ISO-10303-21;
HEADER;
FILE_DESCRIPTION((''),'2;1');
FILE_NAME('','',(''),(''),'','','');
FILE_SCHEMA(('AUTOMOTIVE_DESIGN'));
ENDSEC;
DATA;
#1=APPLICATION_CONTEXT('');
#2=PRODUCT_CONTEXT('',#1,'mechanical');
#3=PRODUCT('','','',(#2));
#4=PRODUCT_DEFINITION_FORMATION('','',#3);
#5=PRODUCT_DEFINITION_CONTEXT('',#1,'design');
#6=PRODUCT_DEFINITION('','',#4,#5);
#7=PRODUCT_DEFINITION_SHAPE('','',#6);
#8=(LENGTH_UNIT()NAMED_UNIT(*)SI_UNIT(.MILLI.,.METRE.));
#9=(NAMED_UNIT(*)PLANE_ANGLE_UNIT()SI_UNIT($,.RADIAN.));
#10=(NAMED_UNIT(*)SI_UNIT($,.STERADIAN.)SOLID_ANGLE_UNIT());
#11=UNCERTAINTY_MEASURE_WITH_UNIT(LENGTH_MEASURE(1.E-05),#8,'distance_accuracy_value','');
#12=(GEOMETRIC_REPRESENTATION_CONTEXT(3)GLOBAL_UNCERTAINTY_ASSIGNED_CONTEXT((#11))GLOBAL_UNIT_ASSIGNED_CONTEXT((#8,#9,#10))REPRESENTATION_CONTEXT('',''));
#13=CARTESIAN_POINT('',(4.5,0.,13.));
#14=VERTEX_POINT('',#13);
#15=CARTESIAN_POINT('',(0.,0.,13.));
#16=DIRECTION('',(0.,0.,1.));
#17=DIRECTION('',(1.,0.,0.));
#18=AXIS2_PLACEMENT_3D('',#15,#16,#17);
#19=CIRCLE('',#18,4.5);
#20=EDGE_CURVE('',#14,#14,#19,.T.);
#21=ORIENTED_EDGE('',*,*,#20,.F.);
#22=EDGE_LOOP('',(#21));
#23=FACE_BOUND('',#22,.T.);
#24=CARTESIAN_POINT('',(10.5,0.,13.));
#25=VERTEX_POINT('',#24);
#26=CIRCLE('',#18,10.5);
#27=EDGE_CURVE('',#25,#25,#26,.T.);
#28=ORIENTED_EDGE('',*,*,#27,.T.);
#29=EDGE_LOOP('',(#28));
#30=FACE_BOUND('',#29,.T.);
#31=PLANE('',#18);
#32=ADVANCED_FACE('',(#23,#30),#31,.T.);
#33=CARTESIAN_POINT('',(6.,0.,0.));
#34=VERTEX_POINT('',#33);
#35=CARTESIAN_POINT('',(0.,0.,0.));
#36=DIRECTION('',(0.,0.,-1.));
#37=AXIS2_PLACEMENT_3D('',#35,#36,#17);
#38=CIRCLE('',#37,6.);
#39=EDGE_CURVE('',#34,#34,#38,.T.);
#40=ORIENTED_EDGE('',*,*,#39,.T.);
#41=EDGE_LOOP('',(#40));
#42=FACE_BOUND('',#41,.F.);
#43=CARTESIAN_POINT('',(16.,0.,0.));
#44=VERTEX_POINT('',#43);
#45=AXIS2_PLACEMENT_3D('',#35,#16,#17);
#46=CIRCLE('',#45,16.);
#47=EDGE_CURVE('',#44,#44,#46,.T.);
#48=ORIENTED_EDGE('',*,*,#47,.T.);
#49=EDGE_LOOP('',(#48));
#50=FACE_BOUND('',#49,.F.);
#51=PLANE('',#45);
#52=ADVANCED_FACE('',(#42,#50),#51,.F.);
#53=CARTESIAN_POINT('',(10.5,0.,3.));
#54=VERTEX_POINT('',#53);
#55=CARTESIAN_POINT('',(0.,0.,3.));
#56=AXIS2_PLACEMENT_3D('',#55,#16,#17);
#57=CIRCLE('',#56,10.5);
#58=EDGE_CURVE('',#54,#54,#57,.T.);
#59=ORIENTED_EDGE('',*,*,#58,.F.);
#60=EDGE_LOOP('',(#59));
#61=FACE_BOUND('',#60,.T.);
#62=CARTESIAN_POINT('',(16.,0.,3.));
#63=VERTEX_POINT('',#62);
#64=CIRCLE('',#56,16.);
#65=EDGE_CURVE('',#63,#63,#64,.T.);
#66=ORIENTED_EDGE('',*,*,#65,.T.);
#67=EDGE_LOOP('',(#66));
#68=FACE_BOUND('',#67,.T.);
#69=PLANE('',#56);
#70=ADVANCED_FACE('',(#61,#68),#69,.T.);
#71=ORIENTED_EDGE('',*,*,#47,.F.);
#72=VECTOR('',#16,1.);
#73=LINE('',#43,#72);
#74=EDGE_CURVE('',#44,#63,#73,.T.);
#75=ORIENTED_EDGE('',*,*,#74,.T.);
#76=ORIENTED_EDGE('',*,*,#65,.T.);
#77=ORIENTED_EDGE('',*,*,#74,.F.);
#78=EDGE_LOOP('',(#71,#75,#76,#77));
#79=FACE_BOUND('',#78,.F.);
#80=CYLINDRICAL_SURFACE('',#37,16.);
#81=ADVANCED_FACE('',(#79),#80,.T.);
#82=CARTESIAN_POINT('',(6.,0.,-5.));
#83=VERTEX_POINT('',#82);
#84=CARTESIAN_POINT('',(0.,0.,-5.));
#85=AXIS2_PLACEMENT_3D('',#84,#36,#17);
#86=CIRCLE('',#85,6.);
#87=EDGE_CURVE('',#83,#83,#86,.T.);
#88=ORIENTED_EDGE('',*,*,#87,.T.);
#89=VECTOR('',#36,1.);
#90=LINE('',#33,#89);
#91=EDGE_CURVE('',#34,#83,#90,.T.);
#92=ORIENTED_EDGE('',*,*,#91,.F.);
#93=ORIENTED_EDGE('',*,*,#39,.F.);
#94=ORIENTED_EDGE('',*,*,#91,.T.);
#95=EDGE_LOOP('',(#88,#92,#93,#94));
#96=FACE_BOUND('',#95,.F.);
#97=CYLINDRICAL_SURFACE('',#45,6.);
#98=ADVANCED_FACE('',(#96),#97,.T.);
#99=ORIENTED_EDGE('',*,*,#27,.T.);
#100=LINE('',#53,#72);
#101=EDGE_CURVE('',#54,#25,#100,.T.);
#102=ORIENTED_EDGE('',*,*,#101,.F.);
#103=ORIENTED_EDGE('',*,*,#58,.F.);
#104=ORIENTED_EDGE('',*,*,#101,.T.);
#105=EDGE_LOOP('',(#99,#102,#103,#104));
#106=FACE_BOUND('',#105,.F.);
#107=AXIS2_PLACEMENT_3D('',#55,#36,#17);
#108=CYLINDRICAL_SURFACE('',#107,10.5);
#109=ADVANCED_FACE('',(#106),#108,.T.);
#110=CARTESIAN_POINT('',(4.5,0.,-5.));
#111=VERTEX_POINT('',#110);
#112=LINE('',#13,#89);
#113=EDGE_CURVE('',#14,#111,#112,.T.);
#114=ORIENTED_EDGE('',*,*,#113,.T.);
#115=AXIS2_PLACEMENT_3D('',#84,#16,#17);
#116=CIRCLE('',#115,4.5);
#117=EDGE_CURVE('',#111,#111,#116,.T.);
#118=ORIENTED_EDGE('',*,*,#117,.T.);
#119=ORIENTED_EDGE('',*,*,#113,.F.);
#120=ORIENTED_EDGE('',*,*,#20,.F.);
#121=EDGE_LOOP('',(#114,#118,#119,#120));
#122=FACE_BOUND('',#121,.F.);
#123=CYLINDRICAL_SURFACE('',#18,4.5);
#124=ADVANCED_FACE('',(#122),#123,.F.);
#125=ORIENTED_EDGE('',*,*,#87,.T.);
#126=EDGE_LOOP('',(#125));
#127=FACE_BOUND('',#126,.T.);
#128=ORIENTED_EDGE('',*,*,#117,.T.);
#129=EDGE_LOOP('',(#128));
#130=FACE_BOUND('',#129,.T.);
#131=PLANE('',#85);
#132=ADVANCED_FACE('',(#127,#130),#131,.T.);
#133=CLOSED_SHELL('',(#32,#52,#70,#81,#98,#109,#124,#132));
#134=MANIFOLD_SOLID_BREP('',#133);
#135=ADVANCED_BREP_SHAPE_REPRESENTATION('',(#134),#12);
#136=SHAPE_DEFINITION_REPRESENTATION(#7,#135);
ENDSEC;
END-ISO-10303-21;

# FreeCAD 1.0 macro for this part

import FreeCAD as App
import Part
import Sketcher
from FreeCAD import Vector

doc = App.newDocument("Part")
body = doc.addObject("PartDesign::Body", "Body")

# Sketch on XY plane
sketch1 = body.newObject("Sketcher::SketchObject", "Sketch")
sketch1.AttachmentSupport = (doc.getObject("XY_Plane"), [""])
sketch1.MapMode = "FlatFace"
sketch1.addGeometry(Part.Circle(Vector(0, 0, 0), Vector(0, 0, 1), 16), False)
sketch1.addConstraint([
    Sketcher.Constraint("Coincident", 0, 3, -1, 1),
    Sketcher.Constraint("Diameter", 0, 32.0),
])
pad1 = body.newObject("PartDesign::Pad", "Pad")
pad1.Profile = sketch1
pad1.Length = 3

# Sketch on XY plane
sketch2 = body.newObject("Sketcher::SketchObject", "Sketch001")
sketch2.AttachmentSupport = (doc.getObject("XY_Plane"), [""])
sketch2.MapMode = "FlatFace"
sketch2.AttachmentOffset = App.Placement(Vector(0, 0, 3), App.Rotation())
sketch2.addGeometry(Part.Circle(Vector(0, 0, 0), Vector(0, 0, 1), 10.5), False)
sketch2.addConstraint([
    Sketcher.Constraint("Coincident", 0, 3, -1, 1),
    Sketcher.Constraint("Diameter", 0, 21.0),
])
pad2 = body.newObject("PartDesign::Pad", "Pad001")
pad2.Profile = sketch2
pad2.Length = 10

# Sketch on XY plane
sketch3 = body.newObject("Sketcher::SketchObject", "Sketch002")
sketch3.AttachmentSupport = (doc.getObject("XY_Plane"), [""])
sketch3.MapMode = "FlatFace"
sketch3.addGeometry(Part.Circle(Vector(0, 0, 0), Vector(0, 0, 1), 6), False)
sketch3.addConstraint([
    Sketcher.Constraint("Coincident", 0, 3, -1, 1),
    Sketcher.Constraint("Diameter", 0, 12.0),
])
pad3 = body.newObject("PartDesign::Pad", "Pad002")
pad3.Profile = sketch3
pad3.Length = 5
pad3.Reversed = True

# Sketch on XY plane
sketch4 = body.newObject("Sketcher::SketchObject", "Sketch003")
sketch4.AttachmentSupport = (doc.getObject("XY_Plane"), [""])
sketch4.MapMode = "FlatFace"
sketch4.AttachmentOffset = App.Placement(Vector(0, 0, 13), App.Rotation())
sketch4.addGeometry(Part.Circle(Vector(0, 0, 0), Vector(0, 0, 1), 4.5), False)
sketch4.addConstraint([
    Sketcher.Constraint("Coincident", 0, 3, -1, 1),
    Sketcher.Constraint("Diameter", 0, 9.0),
])
pocket1 = body.newObject("PartDesign::Pocket", "Pocket")
pocket1.Profile = sketch4
pocket1.Type = "ThroughAll"

doc.recompute()
